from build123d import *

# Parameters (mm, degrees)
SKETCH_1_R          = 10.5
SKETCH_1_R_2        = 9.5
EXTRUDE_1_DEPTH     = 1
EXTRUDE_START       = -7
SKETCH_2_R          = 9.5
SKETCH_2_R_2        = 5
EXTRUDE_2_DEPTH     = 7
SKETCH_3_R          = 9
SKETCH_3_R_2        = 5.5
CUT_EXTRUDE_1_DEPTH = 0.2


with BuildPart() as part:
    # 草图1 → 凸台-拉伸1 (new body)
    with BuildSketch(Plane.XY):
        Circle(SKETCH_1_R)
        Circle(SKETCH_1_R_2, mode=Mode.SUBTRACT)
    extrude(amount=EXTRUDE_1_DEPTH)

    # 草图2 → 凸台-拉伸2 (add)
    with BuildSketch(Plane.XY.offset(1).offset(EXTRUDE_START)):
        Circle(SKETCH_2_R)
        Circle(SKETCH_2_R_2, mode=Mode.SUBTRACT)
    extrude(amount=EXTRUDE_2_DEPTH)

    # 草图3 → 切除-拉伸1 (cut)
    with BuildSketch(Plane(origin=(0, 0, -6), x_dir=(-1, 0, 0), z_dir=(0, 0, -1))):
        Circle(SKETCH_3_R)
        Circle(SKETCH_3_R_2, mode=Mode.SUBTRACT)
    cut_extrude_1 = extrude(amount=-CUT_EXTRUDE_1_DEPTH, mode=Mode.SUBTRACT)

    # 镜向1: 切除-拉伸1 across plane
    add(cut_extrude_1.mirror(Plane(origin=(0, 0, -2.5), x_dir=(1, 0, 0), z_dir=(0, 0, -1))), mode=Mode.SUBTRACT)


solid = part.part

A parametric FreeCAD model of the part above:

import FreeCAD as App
import Part
import Sketcher

doc = App.newDocument("Part")
params = doc.addObject("Spreadsheet::Sheet", "Params")
for row, (alias, value) in enumerate([
    ("sketch1_diameter", "21 mm"),
    ("sketch1_diameter2", "19 mm"),
    ("pad1_length", "1 mm"),
    ("sketch2_diameter", "19 mm"),
    ("sketch2_diameter2", "10 mm"),
    ("pad2_length", "7 mm"),
    ("sketch3_diameter", "18 mm"),
    ("sketch3_diameter2", "11 mm"),
    ("pocket1_length", "0.2 mm"),
], start=1):
    params.set(f"A{row}", alias)
    params.set(f"B{row}", "=" + value)
    params.setAlias(f"B{row}", alias)

body = doc.addObject("PartDesign::Body", "Body")

sketch1 = doc.addObject("Sketcher::SketchObject", "Sketch")
body.addObject(sketch1)
sketch1.AttachmentSupport = (doc.XY_Plane, [""])
sketch1.MapMode = "FlatFace"
sketch1.addGeometry(Part.Circle(App.Vector(0, 0, 0), App.Vector(0, 0, 1), 10), False)
sketch1.addGeometry(Part.Circle(App.Vector(0, 0, 0), App.Vector(0, 0, 1), 10), False)
sketch1.addConstraint(Sketcher.Constraint("Coincident", 0, 3, -1, 1))
sketch1.addConstraint(Sketcher.Constraint("Coincident", 1, 3, -1, 1))
sketch1.addConstraint(Sketcher.Constraint("Diameter", 0, 21.0))
sketch1.addConstraint(Sketcher.Constraint("Diameter", 1, 19.0))
sketch1.setExpression("Constraints[2]", "Params.sketch1_diameter")
sketch1.setExpression("Constraints[3]", "Params.sketch1_diameter2")
pad1 = doc.addObject("PartDesign::Pad", "Pad")
body.addObject(pad1)
pad1.Profile = sketch1
pad1.setExpression("Length", "Params.pad1_length")

sketch2 = doc.addObject("Sketcher::SketchObject", "Sketch001")
body.addObject(sketch2)
sketch2.AttachmentSupport = (doc.XY_Plane, [""])
sketch2.MapMode = "FlatFace"
sketch2.AttachmentOffset = App.Placement(App.Vector(0, 0, -6), App.Rotation())
sketch2.addGeometry(Part.Circle(App.Vector(0, 0, 0), App.Vector(0, 0, 1), 10), False)
sketch2.addGeometry(Part.Circle(App.Vector(0, 0, 0), App.Vector(0, 0, 1), 5), False)
sketch2.addConstraint(Sketcher.Constraint("Coincident", 0, 3, -1, 1))
sketch2.addConstraint(Sketcher.Constraint("Coincident", 1, 3, -1, 1))
sketch2.addConstraint(Sketcher.Constraint("Diameter", 0, 19.0))
sketch2.addConstraint(Sketcher.Constraint("Diameter", 1, 10.0))
sketch2.setExpression("Constraints[2]", "Params.sketch2_diameter")
sketch2.setExpression("Constraints[3]", "Params.sketch2_diameter2")
pad2 = doc.addObject("PartDesign::Pad", "Pad001")
body.addObject(pad2)
pad2.Profile = sketch2
pad2.setExpression("Length", "Params.pad2_length")

sketch3 = doc.addObject("Sketcher::SketchObject", "Sketch002")
body.addObject(sketch3)
sketch3.AttachmentSupport = (doc.XY_Plane, [""])
sketch3.MapMode = "FlatFace"
sketch3.AttachmentOffset = App.Placement(App.Vector(0, 0, -6), App.Rotation())
sketch3.addGeometry(Part.Circle(App.Vector(0, 0, 0), App.Vector(0, 0, 1), 9), False)
sketch3.addGeometry(Part.Circle(App.Vector(0, 0, 0), App.Vector(0, 0, 1), 6), False)
sketch3.addConstraint(Sketcher.Constraint("Coincident", 0, 3, -1, 1))
sketch3.addConstraint(Sketcher.Constraint("Coincident", 1, 3, -1, 1))
sketch3.addConstraint(Sketcher.Constraint("Diameter", 0, 18.0))
sketch3.addConstraint(Sketcher.Constraint("Diameter", 1, 11.0))
sketch3.setExpression("Constraints[2]", "Params.sketch3_diameter")
sketch3.setExpression("Constraints[3]", "Params.sketch3_diameter2")
pocket1 = doc.addObject("PartDesign::Pocket", "Pocket")
body.addObject(pocket1)
pocket1.Profile = sketch3
pocket1.setExpression("Length", "Params.pocket1_length")
pocket1.Reversed = True
doc.recompute()

datumplane = doc.addObject("PartDesign::Plane", "DatumPlane")
body.addObject(datumplane)
datumplane.AttachmentSupport = (doc.XY_Plane, [""])
datumplane.MapMode = "FlatFace"
datumplane.AttachmentOffset = App.Placement(App.Vector(0, 0, -2.5), App.Rotation())
mirrored = doc.addObject("PartDesign::Mirrored", "Mirrored")
body.addObject(mirrored)
mirrored.Originals = [pocket1]
mirrored.MirrorPlane = (datumplane, [""])
body.Tip = mirrored

doc.recompute()
